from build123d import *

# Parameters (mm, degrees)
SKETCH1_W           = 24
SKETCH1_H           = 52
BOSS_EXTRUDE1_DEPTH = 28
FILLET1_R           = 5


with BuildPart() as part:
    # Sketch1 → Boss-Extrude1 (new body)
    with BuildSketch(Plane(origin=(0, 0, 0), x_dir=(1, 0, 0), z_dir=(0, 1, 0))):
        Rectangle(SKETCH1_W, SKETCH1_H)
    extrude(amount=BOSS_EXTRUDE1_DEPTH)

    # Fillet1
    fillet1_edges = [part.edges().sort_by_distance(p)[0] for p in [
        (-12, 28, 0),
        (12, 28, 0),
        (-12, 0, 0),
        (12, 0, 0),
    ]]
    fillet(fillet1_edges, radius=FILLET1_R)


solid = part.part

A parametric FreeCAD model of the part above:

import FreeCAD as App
import Part
import Sketcher
Q = App.Units.Quantity


def edges_at(feature, points):
    """Names of the edges that pass closest to the given points."""
    edges = feature.Shape.Edges
    near = lambda p: min(range(len(edges)), key=lambda i: edges[i].distToShape(Part.Vertex(*p))[0])
    return sorted({f"Edge{near(p) + 1}" for p in points})

doc = App.newDocument("Part")
params = doc.addObject("Spreadsheet::Sheet", "Params")
for row, (alias, value) in enumerate([
    ("sketch1_width", "24 mm"),
    ("sketch1_height", "52 mm"),
    ("pad1_length", "28 mm"),
    ("fillet_radius", "5 mm"),
], start=1):
    params.set(f"A{row}", alias)
    params.set(f"B{row}", "=" + value)
    params.setAlias(f"B{row}", alias)

body = doc.addObject("PartDesign::Body", "Body")

# Sketch on XZ plane
sketch1 = body.newObject("Sketcher::SketchObject", "Sketch")
sketch1.AttachmentSupport = (doc.getObject("XZ_Plane"), [""])
sketch1.MapMode = "FlatFace"
sketch1.addGeometry(Part.LineSegment(App.Vector(-12, -26, 0), App.Vector(-12, 26, 0)), False)
sketch1.addGeometry(Part.LineSegment(App.Vector(-12, 26, 0), App.Vector(12, 26, 0)), False)
sketch1.addGeometry(Part.LineSegment(App.Vector(12, 26, 0), App.Vector(12, -26, 0)), False)
sketch1.addGeometry(Part.LineSegment(App.Vector(12, -26, 0), App.Vector(-12, -26, 0)), False)
sketch1.addConstraint(Sketcher.Constraint("Coincident", 0, 2, 1, 1))
sketch1.addConstraint(Sketcher.Constraint("Coincident", 1, 2, 2, 1))
sketch1.addConstraint(Sketcher.Constraint("Coincident", 2, 2, 3, 1))
sketch1.addConstraint(Sketcher.Constraint("Coincident", 3, 2, 0, 1))
sketch1.addConstraint(Sketcher.Constraint("Vertical", 0))
sketch1.addConstraint(Sketcher.Constraint("Horizontal", 1))
sketch1.addConstraint(Sketcher.Constraint("Vertical", 2))
sketch1.addConstraint(Sketcher.Constraint("Horizontal", 3))
sketch1.addConstraint(Sketcher.Constraint("Symmetric", 0, 2, 2, 2, -1, 1))
sketch1.addConstraint(Sketcher.Constraint("DistanceX", 1, 1, 1, 2, Q("24 mm")))
sketch1.addConstraint(Sketcher.Constraint("DistanceY", 0, 1, 0, 2, Q("52 mm")))
sketch1.setExpression("Constraints[9]", "Params.sketch1_width")
sketch1.setExpression("Constraints[10]", "Params.sketch1_height")
pad1 = body.newObject("PartDesign::Pad", "Pad")
pad1.Profile = sketch1
pad1.setExpression("Length", "Params.pad1_length")
pad1.Reversed = True
doc.recompute()

fillet = body.newObject("PartDesign::Fillet", "Fillet")
fillet.Base = (pad1, edges_at(pad1, [
    (-12, 28, 0),
    (12, 28, 0),
    (-12, 0, 0),
    (12, 0, 0),
]))
fillet.setExpression("Radius", "Params.fillet_radius")

doc.recompute()
